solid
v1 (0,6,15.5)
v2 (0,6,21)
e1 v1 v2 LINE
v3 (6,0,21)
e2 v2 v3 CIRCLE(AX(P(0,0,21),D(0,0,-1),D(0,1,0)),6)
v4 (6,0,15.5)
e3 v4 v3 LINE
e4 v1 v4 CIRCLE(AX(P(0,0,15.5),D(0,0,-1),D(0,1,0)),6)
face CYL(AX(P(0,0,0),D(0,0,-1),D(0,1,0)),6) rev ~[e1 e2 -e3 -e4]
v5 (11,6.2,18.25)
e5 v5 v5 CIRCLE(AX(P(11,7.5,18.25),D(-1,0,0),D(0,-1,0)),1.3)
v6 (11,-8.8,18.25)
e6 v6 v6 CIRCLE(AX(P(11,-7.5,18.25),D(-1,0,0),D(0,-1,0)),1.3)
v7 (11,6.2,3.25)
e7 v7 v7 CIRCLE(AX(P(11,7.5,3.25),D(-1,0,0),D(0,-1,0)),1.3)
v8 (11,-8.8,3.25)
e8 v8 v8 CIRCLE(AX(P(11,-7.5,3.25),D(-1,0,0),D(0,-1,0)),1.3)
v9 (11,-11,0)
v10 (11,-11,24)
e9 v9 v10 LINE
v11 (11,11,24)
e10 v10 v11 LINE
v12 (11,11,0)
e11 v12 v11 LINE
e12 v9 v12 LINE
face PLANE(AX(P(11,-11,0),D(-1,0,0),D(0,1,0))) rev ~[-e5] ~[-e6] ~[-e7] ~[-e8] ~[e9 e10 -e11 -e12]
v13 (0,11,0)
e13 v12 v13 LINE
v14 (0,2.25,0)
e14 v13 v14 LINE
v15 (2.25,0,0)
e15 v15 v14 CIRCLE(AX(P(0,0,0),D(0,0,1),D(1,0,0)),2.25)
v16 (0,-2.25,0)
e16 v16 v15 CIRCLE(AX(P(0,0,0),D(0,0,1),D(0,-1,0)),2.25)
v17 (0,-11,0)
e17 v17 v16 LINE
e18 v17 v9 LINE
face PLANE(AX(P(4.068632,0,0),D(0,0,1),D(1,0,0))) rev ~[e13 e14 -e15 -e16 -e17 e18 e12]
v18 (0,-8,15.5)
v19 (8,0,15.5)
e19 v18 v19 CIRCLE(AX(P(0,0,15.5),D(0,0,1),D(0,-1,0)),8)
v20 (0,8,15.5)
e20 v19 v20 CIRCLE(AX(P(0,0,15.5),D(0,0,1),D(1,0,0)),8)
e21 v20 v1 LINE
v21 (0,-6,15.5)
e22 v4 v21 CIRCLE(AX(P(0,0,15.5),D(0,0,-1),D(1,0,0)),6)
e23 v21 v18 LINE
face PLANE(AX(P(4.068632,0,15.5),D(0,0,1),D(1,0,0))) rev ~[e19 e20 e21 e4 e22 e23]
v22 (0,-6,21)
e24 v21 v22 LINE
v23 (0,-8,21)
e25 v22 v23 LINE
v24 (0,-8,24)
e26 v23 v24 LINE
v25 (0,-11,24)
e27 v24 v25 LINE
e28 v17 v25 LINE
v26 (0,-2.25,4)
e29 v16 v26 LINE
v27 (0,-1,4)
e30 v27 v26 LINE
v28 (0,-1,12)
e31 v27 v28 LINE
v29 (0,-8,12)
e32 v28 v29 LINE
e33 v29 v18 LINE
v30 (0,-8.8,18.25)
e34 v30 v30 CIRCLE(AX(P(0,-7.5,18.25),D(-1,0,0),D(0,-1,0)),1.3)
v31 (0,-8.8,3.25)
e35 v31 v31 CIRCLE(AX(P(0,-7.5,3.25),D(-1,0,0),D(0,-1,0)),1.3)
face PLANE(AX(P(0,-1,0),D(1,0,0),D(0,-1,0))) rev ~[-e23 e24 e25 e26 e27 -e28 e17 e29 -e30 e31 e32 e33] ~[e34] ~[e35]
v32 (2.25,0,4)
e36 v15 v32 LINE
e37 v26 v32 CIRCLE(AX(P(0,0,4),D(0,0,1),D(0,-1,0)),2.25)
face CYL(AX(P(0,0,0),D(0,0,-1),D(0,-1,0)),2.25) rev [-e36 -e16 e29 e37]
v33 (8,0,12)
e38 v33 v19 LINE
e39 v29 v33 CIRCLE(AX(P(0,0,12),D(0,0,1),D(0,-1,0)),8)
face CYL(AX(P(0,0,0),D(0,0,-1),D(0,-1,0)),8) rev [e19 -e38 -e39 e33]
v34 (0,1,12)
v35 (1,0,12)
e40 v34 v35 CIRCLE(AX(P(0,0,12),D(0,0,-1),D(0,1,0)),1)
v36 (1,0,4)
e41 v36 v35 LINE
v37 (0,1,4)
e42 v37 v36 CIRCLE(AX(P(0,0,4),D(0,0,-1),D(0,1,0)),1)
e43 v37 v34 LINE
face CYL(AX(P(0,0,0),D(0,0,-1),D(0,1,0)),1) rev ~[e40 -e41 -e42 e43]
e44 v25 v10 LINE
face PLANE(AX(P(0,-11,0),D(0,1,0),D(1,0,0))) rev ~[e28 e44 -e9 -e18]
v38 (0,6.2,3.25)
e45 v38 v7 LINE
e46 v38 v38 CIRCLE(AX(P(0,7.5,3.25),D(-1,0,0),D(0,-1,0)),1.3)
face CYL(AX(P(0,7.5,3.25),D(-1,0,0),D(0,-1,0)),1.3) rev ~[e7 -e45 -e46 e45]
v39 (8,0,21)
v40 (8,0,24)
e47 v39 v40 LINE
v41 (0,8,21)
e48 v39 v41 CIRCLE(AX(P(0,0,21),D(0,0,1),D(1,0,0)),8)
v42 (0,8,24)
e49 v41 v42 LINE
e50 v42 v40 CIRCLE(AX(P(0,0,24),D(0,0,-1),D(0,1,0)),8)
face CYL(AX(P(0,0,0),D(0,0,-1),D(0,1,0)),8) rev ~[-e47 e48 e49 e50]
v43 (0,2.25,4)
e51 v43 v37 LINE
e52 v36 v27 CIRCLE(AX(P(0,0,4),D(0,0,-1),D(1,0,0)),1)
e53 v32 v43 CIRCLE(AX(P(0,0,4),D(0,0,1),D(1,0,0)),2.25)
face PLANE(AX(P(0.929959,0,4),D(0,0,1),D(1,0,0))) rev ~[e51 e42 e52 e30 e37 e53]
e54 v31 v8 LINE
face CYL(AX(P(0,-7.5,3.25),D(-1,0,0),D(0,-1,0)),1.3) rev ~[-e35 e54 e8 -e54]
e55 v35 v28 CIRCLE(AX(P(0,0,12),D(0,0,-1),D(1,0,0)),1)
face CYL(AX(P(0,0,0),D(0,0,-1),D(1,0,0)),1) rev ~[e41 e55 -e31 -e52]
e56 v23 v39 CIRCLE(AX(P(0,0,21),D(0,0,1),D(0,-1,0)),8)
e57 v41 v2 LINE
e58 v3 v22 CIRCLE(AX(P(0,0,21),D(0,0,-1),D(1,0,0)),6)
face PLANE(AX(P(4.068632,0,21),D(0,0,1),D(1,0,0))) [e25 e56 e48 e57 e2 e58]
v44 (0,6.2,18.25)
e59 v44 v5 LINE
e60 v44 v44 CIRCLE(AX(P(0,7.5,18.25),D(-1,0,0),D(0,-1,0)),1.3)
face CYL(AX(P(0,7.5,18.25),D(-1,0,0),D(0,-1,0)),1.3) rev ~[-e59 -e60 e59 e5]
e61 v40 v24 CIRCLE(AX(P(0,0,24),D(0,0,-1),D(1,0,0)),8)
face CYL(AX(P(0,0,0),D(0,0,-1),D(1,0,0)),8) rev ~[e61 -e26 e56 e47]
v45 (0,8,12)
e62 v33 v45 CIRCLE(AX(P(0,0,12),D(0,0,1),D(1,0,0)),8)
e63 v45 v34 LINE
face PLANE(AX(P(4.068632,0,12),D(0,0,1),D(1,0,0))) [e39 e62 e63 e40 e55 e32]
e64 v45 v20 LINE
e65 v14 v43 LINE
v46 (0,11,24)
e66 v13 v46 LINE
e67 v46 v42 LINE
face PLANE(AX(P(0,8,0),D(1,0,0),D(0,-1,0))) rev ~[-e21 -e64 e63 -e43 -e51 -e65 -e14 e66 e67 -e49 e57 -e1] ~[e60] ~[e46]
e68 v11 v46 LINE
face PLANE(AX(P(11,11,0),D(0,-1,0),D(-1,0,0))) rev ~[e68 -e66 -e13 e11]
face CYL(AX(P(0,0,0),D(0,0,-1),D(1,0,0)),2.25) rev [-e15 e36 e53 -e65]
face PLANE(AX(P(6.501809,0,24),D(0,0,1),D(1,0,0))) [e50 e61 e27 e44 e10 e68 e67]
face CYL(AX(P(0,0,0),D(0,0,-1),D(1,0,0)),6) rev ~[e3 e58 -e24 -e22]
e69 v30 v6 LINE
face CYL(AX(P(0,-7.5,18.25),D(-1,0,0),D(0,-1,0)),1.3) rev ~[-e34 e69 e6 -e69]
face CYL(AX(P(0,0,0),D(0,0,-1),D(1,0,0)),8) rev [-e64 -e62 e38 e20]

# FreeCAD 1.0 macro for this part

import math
import FreeCAD as App
import Part
import Sketcher
from FreeCAD import Vector
Q = App.Units.Quantity

doc = App.newDocument("Part")
params = doc.addObject("Spreadsheet::Sheet", "Params")
for row, (alias, value) in enumerate([
    ("sketch1_radius", "8 mm"),
    ("sketch1_width", "11 mm"),
    ("sketch1_height", "3 mm"),
    ("pad1_length", "24 mm"),
    ("sketch2_radius", "8 mm"),
    ("sketch2_radius2", "6 mm"),
    ("pad2_length", "21 mm"),
    ("sketch3_radius", "8 mm"),
    ("sketch3_radius2", "6 mm"),
    ("pocket1_length", "15.5 mm"),
    ("sketch4_radius", "8 mm"),
    ("sketch4_radius2", "1 mm"),
    ("pad3_length", "12 mm"),
    ("sketch5_radius", "1 mm"),
    ("sketch5_radius2", "2.25 mm"),
    ("pocket2_length", "4 mm"),
    ("sketch6_diameter", "2.6 mm"),
], start=1):
    params.set(f"A{row}", alias)
    params.set(f"B{row}", "=" + value)
    params.setAlias(f"B{row}", alias)

body = doc.addObject("PartDesign::Body", "Body")

sketch1 = body.newObject("Sketcher::SketchObject", "Sketch")
sketch1.AttachmentSupport = (doc.getObject("XY_Plane"), [""])
sketch1.MapMode = "FlatFace"
sketch1.addGeometry([
    Part.LineSegment(Vector(11, 11, 0), Vector(0, 11, 0)),
    Part.LineSegment(Vector(0, 11, 0), Vector(0, 8, 0)),
    Part.ArcOfCircle(Part.Circle(Vector(0, 0, 0), Vector(0, 0, 1), 8), math.radians(0), math.radians(90)),
    Part.ArcOfCircle(Part.Circle(Vector(0, 0, 0), Vector(0, 0, 1), 8), math.radians(-90), math.radians(0)),
    Part.LineSegment(Vector(0, -8, 0), Vector(0, -11, 0)),
    Part.LineSegment(Vector(0, -11, 0), Vector(11, -11, 0)),
    Part.LineSegment(Vector(11, -11, 0), Vector(11, 11, 0)),
], False)
sketch1.addConstraint([
    Sketcher.Constraint("Coincident", 0, 2, 1, 1),
    Sketcher.Constraint("Coincident", 1, 2, 2, 2),
    Sketcher.Constraint("Tangent", 2, 1, 3, 2),
    Sketcher.Constraint("Coincident", 3, 1, 4, 1),
    Sketcher.Constraint("Coincident", 4, 2, 5, 1),
    Sketcher.Constraint("Coincident", 5, 2, 6, 1),
    Sketcher.Constraint("Coincident", 6, 2, 0, 1),
    Sketcher.Constraint("Horizontal", 0),
    Sketcher.Constraint("Vertical", 1),
    Sketcher.Constraint("Vertical", 4),
    Sketcher.Constraint("Horizontal", 5),
    Sketcher.Constraint("Vertical", 6),
    Sketcher.Constraint("Coincident", 2, 3, -1, 1),
    Sketcher.Constraint("Equal", 2, 3),
    Sketcher.Constraint("Symmetric", 0, 2, 4, 2, -1, 1),
    Sketcher.Constraint("PointOnObject", 0, 2, -2),
    Sketcher.Constraint("PointOnObject", 2, 1, -1),
    Sketcher.Constraint("Radius", 2, Q("8 mm")),
    Sketcher.Constraint("DistanceX", 0, 2, 0, 1, Q("11 mm")),
    Sketcher.Constraint("DistanceY", 1, 2, 1, 1, Q("3 mm")),
])
sketch1.setExpression("Constraints[17]", "Params.sketch1_radius")
sketch1.setExpression("Constraints[18]", "Params.sketch1_width")
sketch1.setExpression("Constraints[19]", "Params.sketch1_height")
pad1 = body.newObject("PartDesign::Pad", "Pad")
pad1.Profile = sketch1
pad1.setExpression("Length", "Params.pad1_length")

sketch2 = body.newObject("Sketcher::SketchObject", "Sketch001")
sketch2.AttachmentSupport = (doc.getObject("XY_Plane"), [""])
sketch2.MapMode = "FlatFace"
sketch2.addGeometry([
    Part.ArcOfCircle(Part.Circle(Vector(0, 0, 0), Vector(0, 0, 1), 8), math.radians(0), math.radians(90)),
    Part.LineSegment(Vector(0, 8, 0), Vector(0, 6, 0)),
    Part.ArcOfCircle(Part.Circle(Vector(0, 0, 0), Vector(0, 0, 1), 6), math.radians(0), math.radians(90)),
    Part.ArcOfCircle(Part.Circle(Vector(0, 0, 0), Vector(0, 0, 1), 6), math.radians(-90), math.radians(0)),
    Part.LineSegment(Vector(0, -6, 0), Vector(0, -8, 0)),
    Part.ArcOfCircle(Part.Circle(Vector(0, 0, 0), Vector(0, 0, 1), 8), math.radians(-90), math.radians(0)),
], False)
sketch2.addConstraint([
    Sketcher.Constraint("Coincident", 0, 2, 1, 1),
    Sketcher.Constraint("Coincident", 1, 2, 2, 2),
    Sketcher.Constraint("Tangent", 2, 1, 3, 2),
    Sketcher.Constraint("Coincident", 3, 1, 4, 1),
    Sketcher.Constraint("Coincident", 4, 2, 5, 1),
    Sketcher.Constraint("Tangent", 5, 2, 0, 1),
    Sketcher.Constraint("Vertical", 1),
    Sketcher.Constraint("Vertical", 4),
    Sketcher.Constraint("Coincident", 0, 3, -1, 1),
    Sketcher.Constraint("Coincident", 2, 3, -1, 1),
    Sketcher.Constraint("Equal", 2, 3),
    Sketcher.Constraint("Equal", 0, 5),
    Sketcher.Constraint("PointOnObject", 0, 2, -2),
    Sketcher.Constraint("PointOnObject", 2, 1, -1),
    Sketcher.Constraint("PointOnObject", 3, 1, -2),
    Sketcher.Constraint("PointOnObject", 5, 2, -1),
    Sketcher.Constraint("Radius", 0, Q("8 mm")),
    Sketcher.Constraint("Radius", 2, Q("6 mm")),
])
sketch2.setExpression("Constraints[16]", "Params.sketch2_radius")
sketch2.setExpression("Constraints[17]", "Params.sketch2_radius2")
pad2 = body.newObject("PartDesign::Pad", "Pad001")
pad2.Profile = sketch2
pad2.setExpression("Length", "Params.pad2_length")

sketch3 = body.newObject("Sketcher::SketchObject", "Sketch002")
sketch3.AttachmentSupport = (doc.getObject("XY_Plane"), [""])
sketch3.MapMode = "FlatFace"
sketch3.addGeometry([
    Part.ArcOfCircle(Part.Circle(Vector(0, 0, 0), Vector(0, 0, 1), 8), math.radians(0), math.radians(90)),
    Part.ArcOfCircle(Part.Circle(Vector(0, 0, 0), Vector(0, 0, 1), 8), math.radians(90), math.radians(270)),
    Part.ArcOfCircle(Part.Circle(Vector(0, 0, 0), Vector(0, 0, 1), 8), math.radians(-90), math.radians(0)),
    Part.ArcOfCircle(Part.Circle(Vector(0, 0, 0), Vector(0, 0, 1), 6), math.radians(0), math.radians(90)),
    Part.ArcOfCircle(Part.Circle(Vector(0, 0, 0), Vector(0, 0, 1), 6), math.radians(-90), math.radians(0)),
    Part.ArcOfCircle(Part.Circle(Vector(0, 0, 0), Vector(0, 0, 1), 6), math.radians(90), math.radians(270)),
], False)
sketch3.addConstraint([
    Sketcher.Constraint("Tangent", 0, 2, 1, 1),
    Sketcher.Constraint("Tangent", 1, 2, 2, 1),
    Sketcher.Constraint("Tangent", 2, 2, 0, 1),
    Sketcher.Constraint("Tangent", 3, 1, 4, 2),
    Sketcher.Constraint("Tangent", 4, 1, 5, 2),
    Sketcher.Constraint("Tangent", 5, 1, 3, 2),
    Sketcher.Constraint("Coincident", 0, 3, -1, 1),
    Sketcher.Constraint("Coincident", 3, 3, -1, 1),
    Sketcher.Constraint("PointOnObject", 0, 2, -2),
    Sketcher.Constraint("PointOnObject", 1, 2, -2),
    Sketcher.Constraint("PointOnObject", 2, 2, -1),
    Sketcher.Constraint("PointOnObject", 3, 1, -1),
    Sketcher.Constraint("PointOnObject", 4, 1, -2),
    Sketcher.Constraint("PointOnObject", 5, 1, -2),
    Sketcher.Constraint("Radius", 0, Q("8 mm")),
    Sketcher.Constraint("Radius", 3, Q("6 mm")),
])
sketch3.setExpression("Constraints[14]", "Params.sketch3_radius")
sketch3.setExpression("Constraints[15]", "Params.sketch3_radius2")
pocket1 = body.newObject("PartDesign::Pocket", "Pocket")
pocket1.Profile = sketch3
pocket1.setExpression("Length", "Params.pocket1_length")
pocket1.Reversed = True

sketch4 = body.newObject("Sketcher::SketchObject", "Sketch003")
sketch4.AttachmentSupport = (doc.getObject("XY_Plane"), [""])
sketch4.MapMode = "FlatFace"
sketch4.addGeometry([
    Part.ArcOfCircle(Part.Circle(Vector(0, 0, 0), Vector(0, 0, 1), 8), math.radians(0), math.radians(90)),
    Part.LineSegment(Vector(0, 8, 0), Vector(0, 1, 0)),
    Part.ArcOfCircle(Part.Circle(Vector(0, 0, 0), Vector(0, 0, 1), 1), math.radians(0), math.radians(90)),
    Part.ArcOfCircle(Part.Circle(Vector(0, 0, 0), Vector(0, 0, 1), 1), math.radians(-90), math.radians(0)),
    Part.LineSegment(Vector(0, -1, 0), Vector(0, -8, 0)),
    Part.ArcOfCircle(Part.Circle(Vector(0, 0, 0), Vector(0, 0, 1), 8), math.radians(-90), math.radians(0)),
], False)
sketch4.addConstraint([
    Sketcher.Constraint("Coincident", 0, 2, 1, 1),
    Sketcher.Constraint("Coincident", 1, 2, 2, 2),
    Sketcher.Constraint("Tangent", 2, 1, 3, 2),
    Sketcher.Constraint("Coincident", 3, 1, 4, 1),
    Sketcher.Constraint("Coincident", 4, 2, 5, 1),
    Sketcher.Constraint("Tangent", 5, 2, 0, 1),
    Sketcher.Constraint("Vertical", 1),
    Sketcher.Constraint("Vertical", 4),
    Sketcher.Constraint("Coincident", 0, 3, -1, 1),
    Sketcher.Constraint("Coincident", 2, 3, -1, 1),
    Sketcher.Constraint("Equal", 2, 3),
    Sketcher.Constraint("Equal", 0, 5),
    Sketcher.Constraint("PointOnObject", 0, 2, -2),
    Sketcher.Constraint("PointOnObject", 2, 1, -1),
    Sketcher.Constraint("PointOnObject", 3, 1, -2),
    Sketcher.Constraint("PointOnObject", 5, 2, -1),
    Sketcher.Constraint("Radius", 0, Q("8 mm")),
    Sketcher.Constraint("Radius", 2, Q("1 mm")),
])
sketch4.setExpression("Constraints[16]", "Params.sketch4_radius")
sketch4.setExpression("Constraints[17]", "Params.sketch4_radius2")
pad3 = body.newObject("PartDesign::Pad", "Pad002")
pad3.Profile = sketch4
pad3.setExpression("Length", "Params.pad3_length")

sketch5 = body.newObject("Sketcher::SketchObject", "Sketch004")
sketch5.AttachmentSupport = (doc.getObject("XY_Plane"), [""])
sketch5.MapMode = "FlatFace"
sketch5.addGeometry([
    Part.ArcOfCircle(Part.Circle(Vector(0, 0, 0), Vector(0, 0, 1), 2.2), math.radians(0), math.radians(90)),
    Part.ArcOfCircle(Part.Circle(Vector(0, 0, 0), Vector(0, 0, 1), 2.2), math.radians(90), math.radians(270)),
    Part.ArcOfCircle(Part.Circle(Vector(0, 0, 0), Vector(0, 0, 1), 2.2), math.radians(-90), math.radians(0)),
    Part.ArcOfCircle(Part.Circle(Vector(0, 0, 0), Vector(0, 0, 1), 1), math.radians(0), math.radians(90)),
    Part.ArcOfCircle(Part.Circle(Vector(0, 0, 0), Vector(0, 0, 1), 1), math.radians(-90), math.radians(0)),
    Part.ArcOfCircle(Part.Circle(Vector(0, 0, 0), Vector(0, 0, 1), 1), math.radians(90), math.radians(270)),
], False)
sketch5.addConstraint([
    Sketcher.Constraint("Tangent", 0, 2, 1, 1),
    Sketcher.Constraint("Tangent", 1, 2, 2, 1),
    Sketcher.Constraint("Tangent", 2, 2, 0, 1),
    Sketcher.Constraint("Tangent", 3, 1, 4, 2),
    Sketcher.Constraint("Tangent", 4, 1, 5, 2),
    Sketcher.Constraint("Tangent", 5, 1, 3, 2),
    Sketcher.Constraint("Coincident", 0, 3, -1, 1),
    Sketcher.Constraint("Coincident", 3, 3, -1, 1),
    Sketcher.Constraint("PointOnObject", 0, 2, -2),
    Sketcher.Constraint("PointOnObject", 1, 2, -2),
    Sketcher.Constraint("PointOnObject", 2, 2, -1),
    Sketcher.Constraint("PointOnObject", 3, 1, -1),
    Sketcher.Constraint("PointOnObject", 4, 1, -2),
    Sketcher.Constraint("PointOnObject", 5, 1, -2),
    Sketcher.Constraint("Radius", 3, Q("1 mm")),
    Sketcher.Constraint("Radius", 0, Q("2.25 mm")),
])
sketch5.setExpression("Constraints[14]", "Params.sketch5_radius")
sketch5.setExpression("Constraints[15]", "Params.sketch5_radius2")
pocket2 = body.newObject("PartDesign::Pocket", "Pocket001")
pocket2.Profile = sketch5
pocket2.setExpression("Length", "Params.pocket2_length")
pocket2.Reversed = True

sketch6 = body.newObject("Sketcher::SketchObject", "Sketch005")
sketch6.AttachmentSupport = (doc.getObject("YZ_Plane"), [""])
sketch6.MapMode = "FlatFace"
sketch6.addGeometry([
    Part.Circle(Vector(7.5, 18.2, 0), Vector(0, 0, 1), 1.3),
    Part.Circle(Vector(-7.5, 18.2, 0), Vector(0, 0, 1), 1.3),
    Part.Circle(Vector(-7.5, 3.2, 0), Vector(0, 0, 1), 1.3),
    Part.Circle(Vector(7.5, 3.2, 0), Vector(0, 0, 1), 1.3),
], False)
sketch6.addConstraint([
    Sketcher.Constraint("Equal", 0, 1),
    Sketcher.Constraint("Equal", 1, 2),
    Sketcher.Constraint("Equal", 2, 3),
    Sketcher.Constraint("Symmetric", 0, 3, 1, 3, -2),
    Sketcher.Constraint("Symmetric", 2, 3, 3, 3, -2),
    Sketcher.Constraint("Vertical", 1, 3, 2, 3),
    Sketcher.Constraint("Diameter", 0, Q("2.6 mm")),
    Sketcher.Constraint("DistanceX", 1, 3, 0, 3, Q("15 mm")),
    Sketcher.Constraint("DistanceY", 2, 3, 1, 3, Q("15 mm")),
    Sketcher.Constraint("DistanceY", -1, 1, 0, 3, Q("18.25 mm")),
])
sketch6.setExpression("Constraints[6]", "Params.sketch6_diameter")
pocket3 = body.newObject("PartDesign::Pocket", "Pocket002")
pocket3.Profile = sketch6
pocket3.Type = "ThroughAll"
pocket3.Reversed = True

doc.recompute()
